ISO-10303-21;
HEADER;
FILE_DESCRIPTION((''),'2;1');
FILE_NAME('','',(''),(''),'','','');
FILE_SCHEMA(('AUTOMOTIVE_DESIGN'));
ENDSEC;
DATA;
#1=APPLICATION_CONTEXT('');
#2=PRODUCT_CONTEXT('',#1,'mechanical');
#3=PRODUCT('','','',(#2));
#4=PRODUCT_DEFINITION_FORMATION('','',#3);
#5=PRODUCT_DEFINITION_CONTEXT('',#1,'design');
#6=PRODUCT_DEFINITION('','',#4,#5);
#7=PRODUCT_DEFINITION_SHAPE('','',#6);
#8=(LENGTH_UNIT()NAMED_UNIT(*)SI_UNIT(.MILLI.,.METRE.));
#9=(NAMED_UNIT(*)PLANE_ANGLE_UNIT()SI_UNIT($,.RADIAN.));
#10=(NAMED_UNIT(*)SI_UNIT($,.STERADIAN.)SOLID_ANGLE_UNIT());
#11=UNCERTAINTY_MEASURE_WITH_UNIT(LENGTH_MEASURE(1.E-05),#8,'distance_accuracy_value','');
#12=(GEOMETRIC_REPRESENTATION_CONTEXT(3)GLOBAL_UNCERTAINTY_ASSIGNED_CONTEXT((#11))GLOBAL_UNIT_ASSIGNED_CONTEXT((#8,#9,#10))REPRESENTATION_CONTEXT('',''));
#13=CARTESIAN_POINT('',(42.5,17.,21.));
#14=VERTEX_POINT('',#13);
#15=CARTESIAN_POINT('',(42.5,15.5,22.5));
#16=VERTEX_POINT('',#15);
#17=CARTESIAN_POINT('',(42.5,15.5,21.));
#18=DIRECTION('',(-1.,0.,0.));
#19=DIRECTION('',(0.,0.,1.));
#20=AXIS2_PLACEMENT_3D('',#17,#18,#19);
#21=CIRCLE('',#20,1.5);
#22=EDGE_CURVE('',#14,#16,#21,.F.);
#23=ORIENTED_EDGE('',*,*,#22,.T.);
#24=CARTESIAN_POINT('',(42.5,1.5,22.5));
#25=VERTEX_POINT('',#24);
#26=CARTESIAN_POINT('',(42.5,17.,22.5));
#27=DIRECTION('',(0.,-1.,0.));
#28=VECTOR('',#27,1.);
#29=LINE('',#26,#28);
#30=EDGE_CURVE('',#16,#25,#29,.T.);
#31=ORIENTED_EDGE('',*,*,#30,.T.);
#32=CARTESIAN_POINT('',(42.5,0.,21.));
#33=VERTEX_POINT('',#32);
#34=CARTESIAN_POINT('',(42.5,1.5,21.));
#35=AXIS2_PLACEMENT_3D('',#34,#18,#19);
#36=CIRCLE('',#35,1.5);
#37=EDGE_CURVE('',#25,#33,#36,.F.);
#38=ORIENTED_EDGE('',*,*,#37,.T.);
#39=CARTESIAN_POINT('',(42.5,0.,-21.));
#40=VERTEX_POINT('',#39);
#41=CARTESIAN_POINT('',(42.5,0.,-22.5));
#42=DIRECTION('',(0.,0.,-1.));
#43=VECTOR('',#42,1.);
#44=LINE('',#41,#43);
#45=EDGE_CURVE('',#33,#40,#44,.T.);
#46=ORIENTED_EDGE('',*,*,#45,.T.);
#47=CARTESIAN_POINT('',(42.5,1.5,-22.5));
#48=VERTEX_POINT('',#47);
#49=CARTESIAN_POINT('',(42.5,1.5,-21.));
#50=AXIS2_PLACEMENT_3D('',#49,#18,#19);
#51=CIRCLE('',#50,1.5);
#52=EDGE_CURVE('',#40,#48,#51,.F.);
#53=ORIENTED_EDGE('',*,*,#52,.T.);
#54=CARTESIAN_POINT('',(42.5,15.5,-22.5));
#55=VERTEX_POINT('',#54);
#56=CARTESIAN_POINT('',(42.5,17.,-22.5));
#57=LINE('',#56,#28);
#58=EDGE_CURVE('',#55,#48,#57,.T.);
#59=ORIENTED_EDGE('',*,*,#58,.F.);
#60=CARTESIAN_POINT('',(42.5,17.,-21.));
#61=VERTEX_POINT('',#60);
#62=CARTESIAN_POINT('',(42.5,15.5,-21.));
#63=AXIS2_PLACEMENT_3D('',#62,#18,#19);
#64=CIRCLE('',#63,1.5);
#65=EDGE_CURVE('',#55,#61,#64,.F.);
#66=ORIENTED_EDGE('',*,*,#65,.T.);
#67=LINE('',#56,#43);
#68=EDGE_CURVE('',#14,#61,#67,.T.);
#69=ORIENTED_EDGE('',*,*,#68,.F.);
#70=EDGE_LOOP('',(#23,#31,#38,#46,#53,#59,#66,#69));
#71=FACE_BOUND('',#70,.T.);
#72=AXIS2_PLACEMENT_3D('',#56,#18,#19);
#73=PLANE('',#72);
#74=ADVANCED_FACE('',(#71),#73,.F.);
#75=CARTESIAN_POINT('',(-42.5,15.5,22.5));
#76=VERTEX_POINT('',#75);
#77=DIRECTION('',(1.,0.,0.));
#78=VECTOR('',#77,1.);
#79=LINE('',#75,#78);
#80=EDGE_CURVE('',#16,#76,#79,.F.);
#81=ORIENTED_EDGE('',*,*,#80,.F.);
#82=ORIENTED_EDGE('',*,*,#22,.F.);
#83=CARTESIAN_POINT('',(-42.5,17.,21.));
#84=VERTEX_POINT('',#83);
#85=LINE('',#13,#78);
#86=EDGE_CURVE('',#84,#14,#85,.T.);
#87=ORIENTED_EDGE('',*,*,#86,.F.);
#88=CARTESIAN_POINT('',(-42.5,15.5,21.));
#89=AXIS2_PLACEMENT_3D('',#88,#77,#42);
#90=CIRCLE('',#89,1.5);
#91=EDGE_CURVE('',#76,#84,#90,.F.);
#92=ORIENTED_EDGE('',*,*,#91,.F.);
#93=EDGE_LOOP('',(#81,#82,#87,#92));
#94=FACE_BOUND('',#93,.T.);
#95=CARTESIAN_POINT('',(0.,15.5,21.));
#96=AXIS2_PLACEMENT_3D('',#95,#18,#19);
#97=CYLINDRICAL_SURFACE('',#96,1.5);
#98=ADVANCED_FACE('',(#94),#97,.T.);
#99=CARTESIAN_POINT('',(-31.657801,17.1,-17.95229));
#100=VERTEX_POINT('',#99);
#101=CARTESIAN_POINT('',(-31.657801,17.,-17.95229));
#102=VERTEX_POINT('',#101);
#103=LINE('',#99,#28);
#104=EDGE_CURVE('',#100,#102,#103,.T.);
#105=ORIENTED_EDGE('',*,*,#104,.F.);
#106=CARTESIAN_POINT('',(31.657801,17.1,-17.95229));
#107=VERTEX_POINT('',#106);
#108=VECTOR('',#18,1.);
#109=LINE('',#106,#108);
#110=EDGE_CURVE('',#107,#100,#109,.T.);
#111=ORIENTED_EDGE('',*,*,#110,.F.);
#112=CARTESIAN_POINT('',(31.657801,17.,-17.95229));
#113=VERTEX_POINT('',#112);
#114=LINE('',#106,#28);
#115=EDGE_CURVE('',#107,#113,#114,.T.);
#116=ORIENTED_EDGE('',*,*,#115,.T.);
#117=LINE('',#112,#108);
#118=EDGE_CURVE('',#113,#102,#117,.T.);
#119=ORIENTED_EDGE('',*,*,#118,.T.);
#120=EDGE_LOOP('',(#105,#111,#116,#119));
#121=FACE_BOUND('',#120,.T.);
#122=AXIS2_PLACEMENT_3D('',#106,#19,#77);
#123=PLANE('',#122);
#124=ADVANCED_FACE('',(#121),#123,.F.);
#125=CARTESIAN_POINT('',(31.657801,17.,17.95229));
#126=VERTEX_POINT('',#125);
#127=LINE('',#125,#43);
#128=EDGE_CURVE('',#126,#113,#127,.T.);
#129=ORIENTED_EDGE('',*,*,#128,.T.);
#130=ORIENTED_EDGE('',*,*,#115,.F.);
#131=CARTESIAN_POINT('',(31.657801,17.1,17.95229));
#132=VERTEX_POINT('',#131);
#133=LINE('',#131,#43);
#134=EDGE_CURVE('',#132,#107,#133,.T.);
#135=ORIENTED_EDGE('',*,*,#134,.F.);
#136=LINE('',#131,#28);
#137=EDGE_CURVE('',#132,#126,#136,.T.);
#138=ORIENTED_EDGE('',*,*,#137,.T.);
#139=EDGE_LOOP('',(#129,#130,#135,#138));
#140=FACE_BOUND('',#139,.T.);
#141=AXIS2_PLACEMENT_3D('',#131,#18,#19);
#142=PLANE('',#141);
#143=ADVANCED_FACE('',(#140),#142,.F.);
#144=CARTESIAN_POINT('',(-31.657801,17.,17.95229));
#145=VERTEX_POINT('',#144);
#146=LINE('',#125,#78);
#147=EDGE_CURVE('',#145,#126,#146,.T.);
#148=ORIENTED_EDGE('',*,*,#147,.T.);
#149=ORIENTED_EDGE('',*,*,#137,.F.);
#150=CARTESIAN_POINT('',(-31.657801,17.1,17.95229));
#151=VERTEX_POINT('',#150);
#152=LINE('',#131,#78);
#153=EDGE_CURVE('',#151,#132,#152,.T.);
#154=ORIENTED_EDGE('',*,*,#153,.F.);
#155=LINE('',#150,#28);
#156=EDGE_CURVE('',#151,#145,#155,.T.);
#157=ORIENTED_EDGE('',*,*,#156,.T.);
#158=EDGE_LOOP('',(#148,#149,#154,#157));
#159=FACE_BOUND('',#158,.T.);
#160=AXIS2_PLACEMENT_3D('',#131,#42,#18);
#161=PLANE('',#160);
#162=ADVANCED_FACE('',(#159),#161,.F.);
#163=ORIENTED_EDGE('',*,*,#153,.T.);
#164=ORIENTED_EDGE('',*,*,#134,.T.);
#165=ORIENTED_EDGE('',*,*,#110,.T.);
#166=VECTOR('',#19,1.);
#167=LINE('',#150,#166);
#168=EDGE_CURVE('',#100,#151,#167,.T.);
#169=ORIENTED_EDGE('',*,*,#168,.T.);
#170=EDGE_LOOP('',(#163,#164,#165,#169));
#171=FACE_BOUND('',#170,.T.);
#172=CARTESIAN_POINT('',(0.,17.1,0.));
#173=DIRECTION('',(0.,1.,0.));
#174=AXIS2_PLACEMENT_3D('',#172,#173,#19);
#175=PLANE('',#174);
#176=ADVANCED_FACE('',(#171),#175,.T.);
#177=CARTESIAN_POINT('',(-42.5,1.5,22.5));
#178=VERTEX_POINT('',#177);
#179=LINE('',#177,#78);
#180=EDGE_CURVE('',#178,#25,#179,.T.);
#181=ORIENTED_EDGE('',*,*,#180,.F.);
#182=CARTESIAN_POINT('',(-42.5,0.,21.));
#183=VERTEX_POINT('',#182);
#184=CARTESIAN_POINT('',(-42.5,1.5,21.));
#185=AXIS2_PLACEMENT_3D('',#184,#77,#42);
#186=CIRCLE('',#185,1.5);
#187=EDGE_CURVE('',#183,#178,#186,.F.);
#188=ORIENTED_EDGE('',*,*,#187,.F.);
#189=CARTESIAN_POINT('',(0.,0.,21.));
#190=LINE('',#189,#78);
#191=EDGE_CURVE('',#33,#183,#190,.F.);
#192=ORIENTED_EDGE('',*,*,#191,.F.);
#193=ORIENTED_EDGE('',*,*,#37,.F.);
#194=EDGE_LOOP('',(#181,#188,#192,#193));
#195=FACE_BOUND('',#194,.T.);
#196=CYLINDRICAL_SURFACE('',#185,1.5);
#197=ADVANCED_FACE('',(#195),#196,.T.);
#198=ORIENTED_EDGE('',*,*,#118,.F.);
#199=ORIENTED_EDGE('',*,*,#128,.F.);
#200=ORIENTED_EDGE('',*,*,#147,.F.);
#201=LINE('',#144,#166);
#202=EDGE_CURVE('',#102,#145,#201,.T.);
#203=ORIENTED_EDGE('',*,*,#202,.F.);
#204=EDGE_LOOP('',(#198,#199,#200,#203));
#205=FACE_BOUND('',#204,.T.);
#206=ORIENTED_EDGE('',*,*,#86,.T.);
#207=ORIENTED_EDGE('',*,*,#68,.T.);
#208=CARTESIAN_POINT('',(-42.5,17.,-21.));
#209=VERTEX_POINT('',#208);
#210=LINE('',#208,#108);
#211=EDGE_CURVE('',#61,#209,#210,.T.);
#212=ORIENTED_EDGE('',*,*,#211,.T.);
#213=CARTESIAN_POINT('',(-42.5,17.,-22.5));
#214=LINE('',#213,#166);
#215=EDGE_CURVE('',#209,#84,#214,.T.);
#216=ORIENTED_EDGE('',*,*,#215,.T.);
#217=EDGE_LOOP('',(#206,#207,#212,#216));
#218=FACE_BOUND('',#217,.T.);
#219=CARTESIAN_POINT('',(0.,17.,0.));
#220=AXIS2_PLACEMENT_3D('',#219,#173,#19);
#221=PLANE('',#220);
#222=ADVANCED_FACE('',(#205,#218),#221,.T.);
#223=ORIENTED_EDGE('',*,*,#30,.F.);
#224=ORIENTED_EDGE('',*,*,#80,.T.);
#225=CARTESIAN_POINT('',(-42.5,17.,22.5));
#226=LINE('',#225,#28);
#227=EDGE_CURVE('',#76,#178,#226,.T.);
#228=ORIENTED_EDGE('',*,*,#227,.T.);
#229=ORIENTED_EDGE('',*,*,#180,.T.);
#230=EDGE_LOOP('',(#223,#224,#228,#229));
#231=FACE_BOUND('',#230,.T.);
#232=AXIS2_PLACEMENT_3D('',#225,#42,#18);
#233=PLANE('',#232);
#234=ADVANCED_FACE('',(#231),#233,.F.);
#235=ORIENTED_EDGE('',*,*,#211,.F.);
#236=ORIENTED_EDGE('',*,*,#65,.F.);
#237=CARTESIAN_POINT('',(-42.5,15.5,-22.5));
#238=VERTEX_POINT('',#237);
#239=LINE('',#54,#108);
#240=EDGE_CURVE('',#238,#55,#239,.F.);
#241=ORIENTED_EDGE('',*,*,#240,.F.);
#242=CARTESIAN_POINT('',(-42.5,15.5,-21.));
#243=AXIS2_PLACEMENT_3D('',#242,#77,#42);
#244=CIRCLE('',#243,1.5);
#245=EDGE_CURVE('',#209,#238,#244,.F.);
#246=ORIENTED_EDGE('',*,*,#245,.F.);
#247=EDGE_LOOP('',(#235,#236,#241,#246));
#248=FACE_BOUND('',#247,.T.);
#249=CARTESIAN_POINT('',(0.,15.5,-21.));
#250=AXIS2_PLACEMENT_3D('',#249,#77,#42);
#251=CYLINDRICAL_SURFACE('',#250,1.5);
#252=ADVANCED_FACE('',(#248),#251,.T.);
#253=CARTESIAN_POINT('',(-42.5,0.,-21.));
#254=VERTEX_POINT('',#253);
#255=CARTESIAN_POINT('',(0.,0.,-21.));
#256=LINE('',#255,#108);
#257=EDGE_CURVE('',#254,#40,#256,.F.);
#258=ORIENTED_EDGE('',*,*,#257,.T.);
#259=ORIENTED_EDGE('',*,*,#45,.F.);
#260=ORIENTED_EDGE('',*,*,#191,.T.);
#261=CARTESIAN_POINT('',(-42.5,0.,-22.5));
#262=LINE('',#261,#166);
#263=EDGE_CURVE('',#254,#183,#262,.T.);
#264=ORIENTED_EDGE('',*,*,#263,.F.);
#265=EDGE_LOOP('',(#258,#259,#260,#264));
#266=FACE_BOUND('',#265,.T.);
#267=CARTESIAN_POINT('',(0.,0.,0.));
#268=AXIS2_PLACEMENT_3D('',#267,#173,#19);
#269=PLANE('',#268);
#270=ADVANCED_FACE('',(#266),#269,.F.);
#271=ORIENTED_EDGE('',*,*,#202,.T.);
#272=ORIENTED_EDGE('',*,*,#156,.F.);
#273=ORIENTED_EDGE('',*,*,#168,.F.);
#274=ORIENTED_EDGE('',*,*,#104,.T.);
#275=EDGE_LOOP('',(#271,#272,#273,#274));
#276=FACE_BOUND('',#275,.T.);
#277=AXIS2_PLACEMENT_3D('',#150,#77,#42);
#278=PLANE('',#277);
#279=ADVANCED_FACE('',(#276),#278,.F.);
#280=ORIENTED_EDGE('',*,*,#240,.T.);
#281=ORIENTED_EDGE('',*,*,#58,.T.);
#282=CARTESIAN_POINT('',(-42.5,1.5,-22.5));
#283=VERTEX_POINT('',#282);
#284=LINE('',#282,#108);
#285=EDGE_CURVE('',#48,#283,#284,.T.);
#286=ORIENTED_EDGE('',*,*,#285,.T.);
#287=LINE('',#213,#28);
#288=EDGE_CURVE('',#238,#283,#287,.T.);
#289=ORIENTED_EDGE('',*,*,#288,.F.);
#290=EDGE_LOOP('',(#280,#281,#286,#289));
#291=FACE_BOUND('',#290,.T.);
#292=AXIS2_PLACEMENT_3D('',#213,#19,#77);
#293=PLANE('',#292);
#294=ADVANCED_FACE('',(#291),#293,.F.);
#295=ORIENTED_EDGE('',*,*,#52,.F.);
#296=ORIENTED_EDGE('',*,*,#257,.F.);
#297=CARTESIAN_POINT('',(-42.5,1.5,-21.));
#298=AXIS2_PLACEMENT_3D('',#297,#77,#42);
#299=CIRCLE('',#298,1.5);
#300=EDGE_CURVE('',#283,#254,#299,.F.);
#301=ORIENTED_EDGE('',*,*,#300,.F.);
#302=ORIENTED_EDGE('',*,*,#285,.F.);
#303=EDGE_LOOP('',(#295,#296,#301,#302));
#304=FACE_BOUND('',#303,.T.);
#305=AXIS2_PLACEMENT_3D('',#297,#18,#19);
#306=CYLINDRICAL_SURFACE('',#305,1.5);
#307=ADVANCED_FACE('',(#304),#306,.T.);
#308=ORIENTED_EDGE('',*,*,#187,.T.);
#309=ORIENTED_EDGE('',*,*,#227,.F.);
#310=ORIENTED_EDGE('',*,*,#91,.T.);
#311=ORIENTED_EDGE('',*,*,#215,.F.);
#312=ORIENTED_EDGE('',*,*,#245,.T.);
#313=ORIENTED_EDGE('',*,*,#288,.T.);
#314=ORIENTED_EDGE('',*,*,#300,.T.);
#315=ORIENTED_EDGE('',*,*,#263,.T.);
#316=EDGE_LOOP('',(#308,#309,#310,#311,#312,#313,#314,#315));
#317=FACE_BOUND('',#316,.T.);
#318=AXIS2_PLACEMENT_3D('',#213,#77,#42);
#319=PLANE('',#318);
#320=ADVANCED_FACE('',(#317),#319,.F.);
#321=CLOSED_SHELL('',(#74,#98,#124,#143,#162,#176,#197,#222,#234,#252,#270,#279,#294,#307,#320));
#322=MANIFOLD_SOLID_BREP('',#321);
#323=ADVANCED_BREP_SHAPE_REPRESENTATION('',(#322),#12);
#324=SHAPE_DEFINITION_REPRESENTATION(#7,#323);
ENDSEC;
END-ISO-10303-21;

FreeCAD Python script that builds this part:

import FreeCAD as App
import Part
import Sketcher
from FreeCAD import Vector


def edges_at(feature, points):
    """Names of the edges that pass closest to the given points."""
    edges = feature.Shape.Edges
    near = lambda p: min(range(len(edges)), key=lambda i: edges[i].distToShape(Part.Vertex(*p))[0])
    return sorted({f"Edge{near(p) + 1}" for p in points})

doc = App.newDocument("Part")
params = doc.addObject("Spreadsheet::Sheet", "Params")
for row, (alias, value) in enumerate([
    ("sketch1_width", "85 mm"),
    ("sketch1_height", "45 mm"),
    ("pad1_length", "17 mm"),
    ("fillet_radius", "1.5 mm"),
    ("pad2_length", "0.1 mm"),
], start=1):
    params.set(f"A{row}", alias)
    params.set(f"B{row}", "=" + value)
    params.setAlias(f"B{row}", alias)

body = doc.addObject("PartDesign::Body", "Body")

# Sketch on XZ plane
sketch1 = doc.addObject("Sketcher::SketchObject", "Sketch")
body.addObject(sketch1)
sketch1.AttachmentSupport = (doc.XZ_Plane, [""])
sketch1.MapMode = "FlatFace"
sketch1.addGeometry(Part.LineSegment(Vector(-42, -22, 0), Vector(-42, 22, 0)), False)
sketch1.addGeometry(Part.LineSegment(Vector(-42, 22, 0), Vector(42, 22, 0)), False)
sketch1.addGeometry(Part.LineSegment(Vector(42, 22, 0), Vector(42, -22, 0)), False)
sketch1.addGeometry(Part.LineSegment(Vector(42, -22, 0), Vector(-42, -22, 0)), False)
sketch1.addConstraint(Sketcher.Constraint("Coincident", 0, 2, 1, 1))
sketch1.addConstraint(Sketcher.Constraint("Coincident", 1, 2, 2, 1))
sketch1.addConstraint(Sketcher.Constraint("Coincident", 2, 2, 3, 1))
sketch1.addConstraint(Sketcher.Constraint("Coincident", 3, 2, 0, 1))
sketch1.addConstraint(Sketcher.Constraint("Vertical", 0))
sketch1.addConstraint(Sketcher.Constraint("Horizontal", 1))
sketch1.addConstraint(Sketcher.Constraint("Vertical", 2))
sketch1.addConstraint(Sketcher.Constraint("Horizontal", 3))
sketch1.addConstraint(Sketcher.Constraint("Symmetric", 0, 2, 2, 2, -1, 1))
sketch1.addConstraint(Sketcher.Constraint("DistanceX", 1, 1, 1, 2, 85.0))
sketch1.addConstraint(Sketcher.Constraint("DistanceY", 0, 1, 0, 2, 45.0))
sketch1.setExpression("Constraints[9]", "Params.sketch1_width")
sketch1.setExpression("Constraints[10]", "Params.sketch1_height")
pad1 = doc.addObject("PartDesign::Pad", "Pad")
body.addObject(pad1)
pad1.Profile = sketch1
pad1.setExpression("Length", "Params.pad1_length")
pad1.Reversed = True
doc.recompute()

fillet = doc.addObject("PartDesign::Fillet", "Fillet")
body.addObject(fillet)
fillet.Base = (pad1, edges_at(pad1, [
    (0, 17, 22.5),
    (0, 0, 22.5),
    (0, 0, -22.5),
    (0, 17, -22.5),
]))
fillet.setExpression("Radius", "Params.fillet_radius")

# Sketch on XZ plane
sketch2 = doc.addObject("Sketcher::SketchObject", "Sketch001")
body.addObject(sketch2)
sketch2.AttachmentSupport = (doc.XZ_Plane, [""])
sketch2.MapMode = "FlatFace"
sketch2.AttachmentOffset = App.Placement(Vector(0, 0, -17), App.Rotation())
sketch2.addGeometry(Part.LineSegment(Vector(-32, -18, 0), Vector(-32, 18, 0)), False)
sketch2.addGeometry(Part.LineSegment(Vector(-32, 18, 0), Vector(32, 18, 0)), False)
sketch2.addGeometry(Part.LineSegment(Vector(32, 18, 0), Vector(32, -18, 0)), False)
sketch2.addGeometry(Part.LineSegment(Vector(32, -18, 0), Vector(-32, -18, 0)), False)
sketch2.addConstraint(Sketcher.Constraint("Coincident", 0, 2, 1, 1))
sketch2.addConstraint(Sketcher.Constraint("Coincident", 1, 2, 2, 1))
sketch2.addConstraint(Sketcher.Constraint("Coincident", 2, 2, 3, 1))
sketch2.addConstraint(Sketcher.Constraint("Coincident", 3, 2, 0, 1))
sketch2.addConstraint(Sketcher.Constraint("Vertical", 0))
sketch2.addConstraint(Sketcher.Constraint("Horizontal", 1))
sketch2.addConstraint(Sketcher.Constraint("Vertical", 2))
sketch2.addConstraint(Sketcher.Constraint("Horizontal", 3))
sketch2.addConstraint(Sketcher.Constraint("Symmetric", 0, 2, 2, 2, -1, 1))
sketch2.addConstraint(Sketcher.Constraint("DistanceY", 0, 1, 0, 2, 35.90458))
sketch2.addConstraint(Sketcher.Constraint("DistanceX", 0, 2, -1, 1, 31.657801))
pad2 = doc.addObject("PartDesign::Pad", "Pad001")
body.addObject(pad2)
pad2.Profile = sketch2
pad2.setExpression("Length", "Params.pad2_length")
pad2.Reversed = True

doc.recompute()
